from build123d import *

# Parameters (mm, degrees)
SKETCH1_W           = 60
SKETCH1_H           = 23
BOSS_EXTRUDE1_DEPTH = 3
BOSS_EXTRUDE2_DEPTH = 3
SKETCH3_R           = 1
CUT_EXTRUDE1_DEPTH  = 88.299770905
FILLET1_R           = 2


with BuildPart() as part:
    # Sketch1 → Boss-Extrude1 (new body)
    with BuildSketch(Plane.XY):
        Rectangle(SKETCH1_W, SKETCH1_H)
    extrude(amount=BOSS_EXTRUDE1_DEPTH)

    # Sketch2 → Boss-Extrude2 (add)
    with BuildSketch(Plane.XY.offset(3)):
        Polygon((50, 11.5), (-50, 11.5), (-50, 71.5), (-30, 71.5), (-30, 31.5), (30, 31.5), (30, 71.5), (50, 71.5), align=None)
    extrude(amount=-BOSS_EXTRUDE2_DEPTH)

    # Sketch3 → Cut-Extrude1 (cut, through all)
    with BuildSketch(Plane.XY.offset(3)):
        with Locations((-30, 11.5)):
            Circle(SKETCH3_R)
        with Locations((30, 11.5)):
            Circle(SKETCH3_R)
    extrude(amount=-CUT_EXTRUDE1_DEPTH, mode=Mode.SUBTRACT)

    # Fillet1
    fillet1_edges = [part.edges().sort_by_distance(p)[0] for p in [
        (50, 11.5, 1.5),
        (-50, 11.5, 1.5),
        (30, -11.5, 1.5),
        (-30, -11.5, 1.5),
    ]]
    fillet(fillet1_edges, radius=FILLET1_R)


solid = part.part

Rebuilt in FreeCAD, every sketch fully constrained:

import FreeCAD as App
import Part
import Sketcher
Q = App.Units.Quantity


def edges_at(feature, points):
    """Names of the edges that pass closest to the given points."""
    edges = feature.Shape.Edges
    near = lambda p: min(range(len(edges)), key=lambda i: edges[i].distToShape(Part.Vertex(*p))[0])
    return sorted({f"Edge{near(p) + 1}" for p in points})


def add_polygon(sketch, points):
    """Adds a closed chain of lines whose ends are joined by coincident constraints."""
    first, n = sketch.GeometryCount, len(points)
    for a, b in zip(points, points[1:] + points[:1]):
        sketch.addGeometry(Part.LineSegment(App.Vector(*a, 0), App.Vector(*b, 0)), False)
    for i in range(n):
        sketch.addConstraint(Sketcher.Constraint("Coincident", first + i, 2, first + (i + 1) % n, 1))

doc = App.newDocument("Part")
body = doc.addObject("PartDesign::Body", "Body")

# Sketch on XY plane
sketch1 = doc.addObject("Sketcher::SketchObject", "Sketch")
body.addObject(sketch1)
sketch1.AttachmentSupport = (doc.XY_Plane, [""])
sketch1.MapMode = "FlatFace"
add_polygon(sketch1, [(-30, 11.5), (-30, -11.5), (30, -11.5), (30, 11.5)])  # lines 0-3
sketch1.addConstraint(Sketcher.Constraint("Vertical", 0))
sketch1.addConstraint(Sketcher.Constraint("Horizontal", 1))
sketch1.addConstraint(Sketcher.Constraint("Vertical", 2))
sketch1.addConstraint(Sketcher.Constraint("Horizontal", 3))
sketch1.addConstraint(Sketcher.Constraint("Symmetric", 0, 2, 2, 2, -1, 1))
sketch1.addConstraint(Sketcher.Constraint("DistanceX", 1, 1, 1, 2, Q("60 mm")))
sketch1.addConstraint(Sketcher.Constraint("DistanceY", 0, 2, 0, 1, Q("23 mm")))
pad1 = doc.addObject("PartDesign::Pad", "Pad")
body.addObject(pad1)
pad1.Profile = sketch1
pad1.Length = 3

# Sketch on XY plane
sketch2 = doc.addObject("Sketcher::SketchObject", "Sketch001")
body.addObject(sketch2)
sketch2.AttachmentSupport = (doc.XY_Plane, [""])
sketch2.MapMode = "FlatFace"
sketch2.AttachmentOffset = App.Placement(App.Vector(0, 0, 3), App.Rotation())
add_polygon(sketch2, [(-50, 11.5), (50, 11.5), (50, 71.5), (30, 71.5), (30, 31.5), (-30, 31.5), (-30, 71.5), (-50, 71.5)])  # lines 0-7
sketch2.addConstraint(Sketcher.Constraint("Horizontal", 0))
sketch2.addConstraint(Sketcher.Constraint("Vertical", 1))
sketch2.addConstraint(Sketcher.Constraint("Horizontal", 2))
sketch2.addConstraint(Sketcher.Constraint("Vertical", 3))
sketch2.addConstraint(Sketcher.Constraint("Horizontal", 4))
sketch2.addConstraint(Sketcher.Constraint("Vertical", 5))
sketch2.addConstraint(Sketcher.Constraint("Horizontal", 6))
sketch2.addConstraint(Sketcher.Constraint("Vertical", 7))
sketch2.addConstraint(Sketcher.Constraint("Symmetric", 2, 2, 5, 2, -2))
sketch2.addConstraint(Sketcher.Constraint("Equal", 2, 6))
sketch2.addConstraint(Sketcher.Constraint("Equal", 4, 1))
sketch2.addConstraint(Sketcher.Constraint("DistanceX", 0, 1, 0, 2, Q("100 mm")))
sketch2.addConstraint(Sketcher.Constraint("DistanceX", 2, 2, 2, 1, Q("20 mm")))
sketch2.addConstraint(Sketcher.Constraint("DistanceY", 3, 2, 3, 1, Q("40 mm")))
sketch2.addConstraint(Sketcher.Constraint("DistanceY", -1, 1, 0, 2, Q("11.5 mm")))
pad2 = doc.addObject("PartDesign::Pad", "Pad001")
body.addObject(pad2)
pad2.Profile = sketch2
pad2.Length = 3
pad2.Reversed = True

# Sketch on XY plane
sketch3 = doc.addObject("Sketcher::SketchObject", "Sketch002")
body.addObject(sketch3)
sketch3.AttachmentSupport = (doc.XY_Plane, [""])
sketch3.MapMode = "FlatFace"
sketch3.AttachmentOffset = App.Placement(App.Vector(0, 0, 3), App.Rotation())
sketch3.addGeometry(Part.Circle(App.Vector(-30, 11.5, 0), App.Vector(0, 0, 1), 1), False)
sketch3.addGeometry(Part.Circle(App.Vector(30, 11.5, 0), App.Vector(0, 0, 1), 1), False)
sketch3.addConstraint(Sketcher.Constraint("Equal", 0, 1))
sketch3.addConstraint(Sketcher.Constraint("Symmetric", 0, 3, 1, 3, -2))
sketch3.addConstraint(Sketcher.Constraint("Diameter", 0, Q("2 mm")))
sketch3.addConstraint(Sketcher.Constraint("DistanceX", 0, 3, -1, 1, Q("30 mm")))
sketch3.addConstraint(Sketcher.Constraint("DistanceY", -1, 1, 0, 3, Q("11.5 mm")))
pocket1 = doc.addObject("PartDesign::Pocket", "Pocket")
body.addObject(pocket1)
pocket1.Profile = sketch3
pocket1.Type = "ThroughAll"
doc.recompute()

fillet = doc.addObject("PartDesign::Fillet", "Fillet")
body.addObject(fillet)
fillet.Base = (pocket1, edges_at(pocket1, [
    (50, 11.5, 1.5),
    (-50, 11.5, 1.5),
    (30, -11.5, 1.5),
    (-30, -11.5, 1.5),
]))
fillet.Radius = 2

doc.recompute()
